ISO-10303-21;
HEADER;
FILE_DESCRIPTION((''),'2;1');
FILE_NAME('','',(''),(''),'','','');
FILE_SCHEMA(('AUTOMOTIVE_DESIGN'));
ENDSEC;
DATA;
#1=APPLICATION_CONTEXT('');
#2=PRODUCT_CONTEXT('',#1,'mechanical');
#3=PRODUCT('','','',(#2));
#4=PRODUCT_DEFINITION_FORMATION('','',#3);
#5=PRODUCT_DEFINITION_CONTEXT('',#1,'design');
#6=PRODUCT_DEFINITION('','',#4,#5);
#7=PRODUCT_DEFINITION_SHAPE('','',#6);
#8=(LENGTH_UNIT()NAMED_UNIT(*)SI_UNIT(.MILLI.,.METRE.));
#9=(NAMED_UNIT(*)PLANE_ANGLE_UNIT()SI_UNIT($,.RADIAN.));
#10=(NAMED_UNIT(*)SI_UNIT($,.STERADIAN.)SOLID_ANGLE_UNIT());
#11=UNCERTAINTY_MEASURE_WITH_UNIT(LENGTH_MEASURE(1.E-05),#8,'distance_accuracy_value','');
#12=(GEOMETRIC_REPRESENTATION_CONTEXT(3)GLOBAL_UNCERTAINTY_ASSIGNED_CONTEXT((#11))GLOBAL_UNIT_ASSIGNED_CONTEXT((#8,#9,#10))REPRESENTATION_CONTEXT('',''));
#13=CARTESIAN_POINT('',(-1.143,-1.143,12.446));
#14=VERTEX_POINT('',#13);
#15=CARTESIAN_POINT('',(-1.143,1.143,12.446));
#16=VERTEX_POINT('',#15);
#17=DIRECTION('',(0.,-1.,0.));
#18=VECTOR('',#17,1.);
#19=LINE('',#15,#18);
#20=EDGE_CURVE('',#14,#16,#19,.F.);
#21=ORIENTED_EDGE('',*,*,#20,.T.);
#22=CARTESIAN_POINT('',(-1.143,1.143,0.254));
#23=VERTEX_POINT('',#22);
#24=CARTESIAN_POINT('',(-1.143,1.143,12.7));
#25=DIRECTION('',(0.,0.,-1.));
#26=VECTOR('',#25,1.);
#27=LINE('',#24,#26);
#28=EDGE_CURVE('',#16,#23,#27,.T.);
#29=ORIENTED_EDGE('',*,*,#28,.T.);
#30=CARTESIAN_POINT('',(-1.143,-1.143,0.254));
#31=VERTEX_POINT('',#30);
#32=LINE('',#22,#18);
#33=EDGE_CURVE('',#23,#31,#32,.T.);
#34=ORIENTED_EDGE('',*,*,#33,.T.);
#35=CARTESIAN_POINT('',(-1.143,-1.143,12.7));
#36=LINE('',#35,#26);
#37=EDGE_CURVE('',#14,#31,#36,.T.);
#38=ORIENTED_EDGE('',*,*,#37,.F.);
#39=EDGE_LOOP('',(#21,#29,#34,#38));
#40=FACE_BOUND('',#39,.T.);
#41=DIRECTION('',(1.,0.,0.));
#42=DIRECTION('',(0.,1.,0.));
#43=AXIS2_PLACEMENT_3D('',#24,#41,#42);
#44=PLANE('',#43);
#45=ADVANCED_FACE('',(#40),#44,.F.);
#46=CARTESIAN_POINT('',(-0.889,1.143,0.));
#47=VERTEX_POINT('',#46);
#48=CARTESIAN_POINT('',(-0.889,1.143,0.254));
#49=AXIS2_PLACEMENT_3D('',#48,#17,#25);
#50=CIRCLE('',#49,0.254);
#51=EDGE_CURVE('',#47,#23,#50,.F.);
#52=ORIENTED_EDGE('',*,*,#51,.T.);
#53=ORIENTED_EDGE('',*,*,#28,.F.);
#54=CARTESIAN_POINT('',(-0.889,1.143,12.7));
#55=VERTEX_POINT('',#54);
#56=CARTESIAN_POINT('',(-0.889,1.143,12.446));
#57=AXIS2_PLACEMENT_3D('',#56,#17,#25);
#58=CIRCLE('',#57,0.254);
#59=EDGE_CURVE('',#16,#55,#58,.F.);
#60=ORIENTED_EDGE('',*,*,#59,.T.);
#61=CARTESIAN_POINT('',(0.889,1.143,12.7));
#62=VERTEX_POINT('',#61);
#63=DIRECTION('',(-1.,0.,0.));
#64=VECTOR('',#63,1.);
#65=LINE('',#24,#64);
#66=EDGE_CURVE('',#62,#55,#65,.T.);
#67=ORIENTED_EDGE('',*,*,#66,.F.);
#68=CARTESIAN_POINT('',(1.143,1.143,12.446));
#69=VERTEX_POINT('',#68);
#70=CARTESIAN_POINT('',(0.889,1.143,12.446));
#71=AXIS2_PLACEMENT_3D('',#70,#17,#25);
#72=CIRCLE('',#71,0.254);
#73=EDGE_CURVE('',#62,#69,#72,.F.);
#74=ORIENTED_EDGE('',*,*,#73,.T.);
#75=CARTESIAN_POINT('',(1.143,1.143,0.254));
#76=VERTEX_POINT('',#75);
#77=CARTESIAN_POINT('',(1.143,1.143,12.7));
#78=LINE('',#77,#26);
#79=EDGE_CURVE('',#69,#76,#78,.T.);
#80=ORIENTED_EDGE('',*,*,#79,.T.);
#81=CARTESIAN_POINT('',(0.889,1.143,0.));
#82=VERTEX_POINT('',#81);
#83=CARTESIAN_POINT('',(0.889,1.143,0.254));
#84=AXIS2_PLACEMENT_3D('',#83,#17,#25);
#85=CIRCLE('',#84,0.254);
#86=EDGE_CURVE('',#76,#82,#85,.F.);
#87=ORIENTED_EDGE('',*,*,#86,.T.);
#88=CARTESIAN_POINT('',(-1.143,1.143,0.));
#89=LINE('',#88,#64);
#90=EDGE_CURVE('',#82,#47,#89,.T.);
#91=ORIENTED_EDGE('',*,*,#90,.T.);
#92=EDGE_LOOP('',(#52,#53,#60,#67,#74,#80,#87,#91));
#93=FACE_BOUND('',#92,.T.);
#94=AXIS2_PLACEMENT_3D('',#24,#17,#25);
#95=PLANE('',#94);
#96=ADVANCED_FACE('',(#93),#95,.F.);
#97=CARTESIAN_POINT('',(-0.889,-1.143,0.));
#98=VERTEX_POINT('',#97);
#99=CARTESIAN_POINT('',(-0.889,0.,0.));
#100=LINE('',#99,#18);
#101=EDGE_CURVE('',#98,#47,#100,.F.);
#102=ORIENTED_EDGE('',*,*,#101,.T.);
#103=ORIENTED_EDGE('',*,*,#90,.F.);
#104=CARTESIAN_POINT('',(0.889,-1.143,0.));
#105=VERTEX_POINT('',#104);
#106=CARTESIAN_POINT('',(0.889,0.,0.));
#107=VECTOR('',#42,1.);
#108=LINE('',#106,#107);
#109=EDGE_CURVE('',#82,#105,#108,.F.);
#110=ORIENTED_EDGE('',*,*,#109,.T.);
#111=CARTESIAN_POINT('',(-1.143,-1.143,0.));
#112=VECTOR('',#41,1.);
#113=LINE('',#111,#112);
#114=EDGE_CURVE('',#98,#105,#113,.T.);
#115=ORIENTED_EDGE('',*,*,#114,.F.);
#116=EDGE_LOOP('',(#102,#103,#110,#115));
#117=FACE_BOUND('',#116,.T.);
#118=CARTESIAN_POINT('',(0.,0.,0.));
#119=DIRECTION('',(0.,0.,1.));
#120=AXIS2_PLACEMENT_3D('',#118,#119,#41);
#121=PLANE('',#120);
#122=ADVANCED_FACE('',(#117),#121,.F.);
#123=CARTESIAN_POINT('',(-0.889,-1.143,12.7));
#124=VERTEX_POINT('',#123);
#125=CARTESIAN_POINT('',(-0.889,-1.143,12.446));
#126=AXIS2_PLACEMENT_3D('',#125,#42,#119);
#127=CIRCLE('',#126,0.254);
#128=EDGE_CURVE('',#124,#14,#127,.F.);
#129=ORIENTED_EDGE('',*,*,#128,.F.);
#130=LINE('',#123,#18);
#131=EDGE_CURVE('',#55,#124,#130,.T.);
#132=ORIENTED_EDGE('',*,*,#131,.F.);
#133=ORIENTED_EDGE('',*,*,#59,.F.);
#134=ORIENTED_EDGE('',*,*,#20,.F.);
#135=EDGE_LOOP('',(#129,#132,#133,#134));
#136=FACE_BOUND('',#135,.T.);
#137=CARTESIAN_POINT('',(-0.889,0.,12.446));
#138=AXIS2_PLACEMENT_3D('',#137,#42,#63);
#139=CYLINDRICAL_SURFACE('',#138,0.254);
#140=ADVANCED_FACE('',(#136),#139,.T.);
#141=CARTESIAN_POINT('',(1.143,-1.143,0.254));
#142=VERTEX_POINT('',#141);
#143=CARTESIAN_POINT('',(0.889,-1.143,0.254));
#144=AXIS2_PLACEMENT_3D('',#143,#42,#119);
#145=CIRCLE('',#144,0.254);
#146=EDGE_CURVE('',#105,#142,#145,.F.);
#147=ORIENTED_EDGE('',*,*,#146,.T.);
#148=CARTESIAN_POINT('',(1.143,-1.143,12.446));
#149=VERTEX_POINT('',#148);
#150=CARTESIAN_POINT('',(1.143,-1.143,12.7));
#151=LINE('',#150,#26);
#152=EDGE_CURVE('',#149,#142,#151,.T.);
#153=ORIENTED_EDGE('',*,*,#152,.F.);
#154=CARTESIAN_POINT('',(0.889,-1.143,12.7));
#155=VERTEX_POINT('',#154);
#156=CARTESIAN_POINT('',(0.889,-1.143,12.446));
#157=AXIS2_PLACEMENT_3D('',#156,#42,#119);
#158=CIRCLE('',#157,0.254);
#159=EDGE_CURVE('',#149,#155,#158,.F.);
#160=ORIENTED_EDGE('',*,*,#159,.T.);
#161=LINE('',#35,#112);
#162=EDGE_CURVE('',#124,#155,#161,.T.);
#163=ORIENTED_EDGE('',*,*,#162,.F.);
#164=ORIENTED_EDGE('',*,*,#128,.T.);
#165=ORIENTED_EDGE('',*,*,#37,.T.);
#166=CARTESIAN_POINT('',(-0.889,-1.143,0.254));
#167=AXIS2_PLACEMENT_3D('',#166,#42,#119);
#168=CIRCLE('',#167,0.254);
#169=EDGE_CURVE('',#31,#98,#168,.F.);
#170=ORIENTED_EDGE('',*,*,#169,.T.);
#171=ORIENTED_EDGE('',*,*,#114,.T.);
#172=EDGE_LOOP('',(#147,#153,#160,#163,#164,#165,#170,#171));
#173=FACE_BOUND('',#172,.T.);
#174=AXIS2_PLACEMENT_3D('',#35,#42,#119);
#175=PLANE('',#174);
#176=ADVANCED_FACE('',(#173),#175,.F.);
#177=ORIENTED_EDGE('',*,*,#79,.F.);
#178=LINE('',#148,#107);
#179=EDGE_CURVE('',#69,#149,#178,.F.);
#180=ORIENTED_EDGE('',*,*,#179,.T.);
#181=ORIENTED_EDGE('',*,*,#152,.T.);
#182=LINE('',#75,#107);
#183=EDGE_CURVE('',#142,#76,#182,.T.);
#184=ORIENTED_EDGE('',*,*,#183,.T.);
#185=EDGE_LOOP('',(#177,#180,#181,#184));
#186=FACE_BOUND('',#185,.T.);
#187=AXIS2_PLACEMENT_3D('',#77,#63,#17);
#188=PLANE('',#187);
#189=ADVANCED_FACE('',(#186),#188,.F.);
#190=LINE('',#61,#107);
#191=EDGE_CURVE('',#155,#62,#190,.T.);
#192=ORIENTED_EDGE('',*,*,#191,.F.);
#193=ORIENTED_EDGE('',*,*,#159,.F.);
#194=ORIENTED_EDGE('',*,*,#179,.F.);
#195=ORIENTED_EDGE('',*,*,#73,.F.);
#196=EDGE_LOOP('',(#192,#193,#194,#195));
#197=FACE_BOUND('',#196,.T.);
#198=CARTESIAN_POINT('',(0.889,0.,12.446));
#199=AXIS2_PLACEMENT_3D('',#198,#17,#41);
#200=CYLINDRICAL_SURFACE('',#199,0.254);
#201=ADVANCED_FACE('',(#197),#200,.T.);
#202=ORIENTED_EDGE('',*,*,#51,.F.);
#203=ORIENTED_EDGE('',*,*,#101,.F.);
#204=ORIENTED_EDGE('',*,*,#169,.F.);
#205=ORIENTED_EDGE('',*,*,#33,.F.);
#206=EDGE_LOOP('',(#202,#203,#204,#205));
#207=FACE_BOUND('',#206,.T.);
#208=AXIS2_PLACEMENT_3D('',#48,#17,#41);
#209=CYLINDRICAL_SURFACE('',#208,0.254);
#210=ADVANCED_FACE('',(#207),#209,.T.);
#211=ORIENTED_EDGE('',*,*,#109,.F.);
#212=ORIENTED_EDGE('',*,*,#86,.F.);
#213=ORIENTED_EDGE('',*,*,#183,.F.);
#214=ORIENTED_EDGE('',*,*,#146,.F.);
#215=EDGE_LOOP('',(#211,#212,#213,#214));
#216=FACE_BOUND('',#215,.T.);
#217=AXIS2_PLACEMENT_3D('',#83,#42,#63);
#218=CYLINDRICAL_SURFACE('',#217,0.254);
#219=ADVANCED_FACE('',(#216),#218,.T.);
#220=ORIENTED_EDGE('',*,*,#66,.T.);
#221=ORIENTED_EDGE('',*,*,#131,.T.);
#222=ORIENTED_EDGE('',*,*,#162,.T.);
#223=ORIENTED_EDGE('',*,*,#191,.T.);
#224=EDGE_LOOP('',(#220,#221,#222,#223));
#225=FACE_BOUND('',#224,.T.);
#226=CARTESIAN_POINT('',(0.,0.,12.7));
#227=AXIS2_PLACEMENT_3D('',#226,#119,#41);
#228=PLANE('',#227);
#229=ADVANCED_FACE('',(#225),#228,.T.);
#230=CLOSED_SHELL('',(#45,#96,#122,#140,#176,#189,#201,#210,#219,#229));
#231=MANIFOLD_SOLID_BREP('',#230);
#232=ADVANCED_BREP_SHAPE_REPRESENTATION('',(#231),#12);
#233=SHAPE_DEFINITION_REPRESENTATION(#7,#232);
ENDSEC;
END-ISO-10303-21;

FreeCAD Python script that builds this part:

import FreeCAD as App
import Part
import Sketcher
from FreeCAD import Vector
Q = App.Units.Quantity


def edges_at(feature, points):
    """Names of the edges that pass closest to the given points."""
    edges = feature.Shape.Edges
    near = lambda p: min(range(len(edges)), key=lambda i: edges[i].distToShape(Part.Vertex(*p))[0])
    return sorted({f"Edge{near(p) + 1}" for p in points})

doc = App.newDocument("Part")
body = doc.addObject("PartDesign::Body", "Body")

sketch1 = doc.addObject("Sketcher::SketchObject", "Sketch")
body.addObject(sketch1)
sketch1.AttachmentSupport = (doc.XY_Plane, [""])
sketch1.MapMode = "FlatFace"
sketch1.addGeometry(Part.LineSegment(Vector(-1.1, 1.1, 0), Vector(-1.1, -1.1, 0)), False)
sketch1.addGeometry(Part.LineSegment(Vector(-1.1, -1.1, 0), Vector(1.1, -1.1, 0)), False)
sketch1.addGeometry(Part.LineSegment(Vector(1.1, -1.1, 0), Vector(1.1, 1.1, 0)), False)
sketch1.addGeometry(Part.LineSegment(Vector(1.1, 1.1, 0), Vector(-1.1, 1.1, 0)), False)
sketch1.addConstraint(Sketcher.Constraint("Coincident", 0, 2, 1, 1))
sketch1.addConstraint(Sketcher.Constraint("Coincident", 1, 2, 2, 1))
sketch1.addConstraint(Sketcher.Constraint("Coincident", 2, 2, 3, 1))
sketch1.addConstraint(Sketcher.Constraint("Coincident", 3, 2, 0, 1))
sketch1.addConstraint(Sketcher.Constraint("Vertical", 0))
sketch1.addConstraint(Sketcher.Constraint("Horizontal", 1))
sketch1.addConstraint(Sketcher.Constraint("Vertical", 2))
sketch1.addConstraint(Sketcher.Constraint("Horizontal", 3))
sketch1.addConstraint(Sketcher.Constraint("Symmetric", 0, 2, 2, 2, -1, 1))
sketch1.addConstraint(Sketcher.Constraint("Equal", 3, 0))
sketch1.addConstraint(Sketcher.Constraint("DistanceX", 1, 1, 1, 2, Q("0.09 in")))
pad1 = doc.addObject("PartDesign::Pad", "Pad")
body.addObject(pad1)
pad1.Profile = sketch1
pad1.Length = Q("0.5 in")
doc.recompute()

fillet = doc.addObject("PartDesign::Fillet", "Fillet")
body.addObject(fillet)
fillet.Base = (pad1, edges_at(pad1, [
    (-1.143, 0, 12.7),
    (1.143, 0, 12.7),
    (-1.143, 0, 0),
    (1.143, 0, 0),
]))
fillet.Radius = Q("0.01 in")

doc.recompute()
